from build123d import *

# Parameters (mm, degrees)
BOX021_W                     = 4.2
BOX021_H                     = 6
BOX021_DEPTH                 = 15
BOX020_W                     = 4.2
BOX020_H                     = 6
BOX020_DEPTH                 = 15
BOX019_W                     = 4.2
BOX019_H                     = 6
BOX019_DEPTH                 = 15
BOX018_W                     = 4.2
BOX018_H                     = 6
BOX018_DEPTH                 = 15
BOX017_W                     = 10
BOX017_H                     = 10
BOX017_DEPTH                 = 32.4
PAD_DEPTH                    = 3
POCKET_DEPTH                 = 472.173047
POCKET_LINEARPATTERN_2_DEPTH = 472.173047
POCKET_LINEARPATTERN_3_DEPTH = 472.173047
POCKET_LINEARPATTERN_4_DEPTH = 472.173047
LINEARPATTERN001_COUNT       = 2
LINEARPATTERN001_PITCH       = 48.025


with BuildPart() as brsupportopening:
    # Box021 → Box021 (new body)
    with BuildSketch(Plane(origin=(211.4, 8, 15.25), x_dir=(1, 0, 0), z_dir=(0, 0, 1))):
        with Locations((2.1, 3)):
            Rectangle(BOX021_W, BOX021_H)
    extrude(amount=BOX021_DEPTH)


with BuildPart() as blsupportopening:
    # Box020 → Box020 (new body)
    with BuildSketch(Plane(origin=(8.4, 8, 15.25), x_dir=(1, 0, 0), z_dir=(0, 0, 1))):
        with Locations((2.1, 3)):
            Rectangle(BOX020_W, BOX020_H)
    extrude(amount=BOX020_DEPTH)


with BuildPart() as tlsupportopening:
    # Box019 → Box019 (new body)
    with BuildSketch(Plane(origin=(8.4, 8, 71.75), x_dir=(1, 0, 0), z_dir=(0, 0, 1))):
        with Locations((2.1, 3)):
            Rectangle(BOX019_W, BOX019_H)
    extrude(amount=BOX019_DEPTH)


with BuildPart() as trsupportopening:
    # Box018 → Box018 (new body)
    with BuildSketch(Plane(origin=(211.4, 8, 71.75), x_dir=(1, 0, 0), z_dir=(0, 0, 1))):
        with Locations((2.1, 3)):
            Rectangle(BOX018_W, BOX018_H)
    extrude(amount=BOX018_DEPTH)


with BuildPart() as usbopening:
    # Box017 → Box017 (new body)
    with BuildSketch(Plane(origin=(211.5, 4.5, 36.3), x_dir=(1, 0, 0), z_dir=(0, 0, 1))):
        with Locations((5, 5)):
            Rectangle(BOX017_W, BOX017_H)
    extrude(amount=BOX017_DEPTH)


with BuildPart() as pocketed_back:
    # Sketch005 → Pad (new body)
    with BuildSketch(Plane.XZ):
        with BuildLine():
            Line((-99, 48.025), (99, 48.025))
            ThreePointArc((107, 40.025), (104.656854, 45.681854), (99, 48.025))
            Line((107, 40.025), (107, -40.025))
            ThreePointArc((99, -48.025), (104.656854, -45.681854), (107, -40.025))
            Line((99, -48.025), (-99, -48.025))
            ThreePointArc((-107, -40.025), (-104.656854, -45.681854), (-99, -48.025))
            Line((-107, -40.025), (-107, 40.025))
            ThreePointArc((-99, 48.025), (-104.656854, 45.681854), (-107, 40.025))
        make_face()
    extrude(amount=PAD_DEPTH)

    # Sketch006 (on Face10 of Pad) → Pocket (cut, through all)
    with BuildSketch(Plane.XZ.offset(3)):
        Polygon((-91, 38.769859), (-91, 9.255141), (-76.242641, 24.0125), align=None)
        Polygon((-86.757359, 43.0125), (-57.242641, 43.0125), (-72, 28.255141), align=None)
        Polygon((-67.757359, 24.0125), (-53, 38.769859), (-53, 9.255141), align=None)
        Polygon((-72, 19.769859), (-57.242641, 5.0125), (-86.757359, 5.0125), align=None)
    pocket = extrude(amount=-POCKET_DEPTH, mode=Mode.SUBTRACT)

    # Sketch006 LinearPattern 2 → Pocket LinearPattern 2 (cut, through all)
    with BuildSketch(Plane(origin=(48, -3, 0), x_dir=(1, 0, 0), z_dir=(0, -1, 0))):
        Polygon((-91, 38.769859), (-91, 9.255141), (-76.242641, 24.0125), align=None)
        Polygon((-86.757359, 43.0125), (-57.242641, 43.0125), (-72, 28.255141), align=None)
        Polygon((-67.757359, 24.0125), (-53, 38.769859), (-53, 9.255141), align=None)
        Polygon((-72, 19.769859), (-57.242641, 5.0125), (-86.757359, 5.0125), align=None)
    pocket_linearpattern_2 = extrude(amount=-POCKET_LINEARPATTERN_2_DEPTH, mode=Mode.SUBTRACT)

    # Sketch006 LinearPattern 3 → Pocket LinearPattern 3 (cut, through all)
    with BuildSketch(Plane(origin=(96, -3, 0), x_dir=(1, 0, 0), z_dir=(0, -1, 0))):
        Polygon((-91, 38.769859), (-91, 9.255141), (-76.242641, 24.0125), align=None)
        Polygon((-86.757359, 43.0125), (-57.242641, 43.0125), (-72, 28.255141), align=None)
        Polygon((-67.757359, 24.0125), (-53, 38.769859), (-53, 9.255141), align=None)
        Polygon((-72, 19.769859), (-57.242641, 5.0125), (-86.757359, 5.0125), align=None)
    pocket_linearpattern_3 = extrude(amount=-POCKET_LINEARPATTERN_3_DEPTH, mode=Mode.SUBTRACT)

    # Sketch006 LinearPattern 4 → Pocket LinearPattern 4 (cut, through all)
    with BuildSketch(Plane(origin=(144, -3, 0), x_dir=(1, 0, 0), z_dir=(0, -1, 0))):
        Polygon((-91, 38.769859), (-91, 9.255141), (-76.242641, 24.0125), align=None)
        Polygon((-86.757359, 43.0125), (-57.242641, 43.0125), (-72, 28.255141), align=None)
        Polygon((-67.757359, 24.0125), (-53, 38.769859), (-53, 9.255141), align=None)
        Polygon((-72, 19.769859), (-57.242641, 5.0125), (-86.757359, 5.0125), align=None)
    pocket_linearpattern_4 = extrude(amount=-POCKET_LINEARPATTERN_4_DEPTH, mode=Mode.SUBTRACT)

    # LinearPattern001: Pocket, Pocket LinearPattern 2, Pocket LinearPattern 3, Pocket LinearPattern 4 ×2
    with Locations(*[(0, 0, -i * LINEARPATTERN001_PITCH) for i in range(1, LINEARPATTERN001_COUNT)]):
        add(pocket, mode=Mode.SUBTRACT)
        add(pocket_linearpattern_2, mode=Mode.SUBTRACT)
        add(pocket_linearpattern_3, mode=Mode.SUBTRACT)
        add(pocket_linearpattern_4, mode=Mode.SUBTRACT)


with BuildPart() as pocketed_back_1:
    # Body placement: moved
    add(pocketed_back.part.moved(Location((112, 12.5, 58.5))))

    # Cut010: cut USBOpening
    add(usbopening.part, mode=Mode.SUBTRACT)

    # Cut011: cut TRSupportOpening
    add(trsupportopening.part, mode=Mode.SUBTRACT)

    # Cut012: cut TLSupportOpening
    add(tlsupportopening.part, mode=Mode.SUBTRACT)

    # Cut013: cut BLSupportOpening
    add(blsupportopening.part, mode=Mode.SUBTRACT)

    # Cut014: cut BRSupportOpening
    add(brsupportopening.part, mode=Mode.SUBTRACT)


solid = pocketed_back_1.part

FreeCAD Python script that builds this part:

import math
import FreeCAD as App
import Part
import Sketcher

V = App.Vector
Q = App.Units.Quantity

doc = App.newDocument("Part")
body = doc.addObject("PartDesign::Body", "Body")

sketch1 = doc.addObject("Sketcher::SketchObject", "Sketch")
body.addObject(sketch1)
sketch1.AttachmentSupport = (doc.XY_Plane, [""])
sketch1.MapMode = "FlatFace"
sketch1.AttachmentOffset = App.Placement(V(0, 0, 15.25), App.Rotation())
sketch1.addGeometry([
    Part.LineSegment(V(211.4, 14, 0), V(211.4, 8, 0)),
    Part.LineSegment(V(211.4, 8, 0), V(215.6, 8, 0)),
    Part.LineSegment(V(215.6, 8, 0), V(215.6, 14, 0)),
    Part.LineSegment(V(215.6, 14, 0), V(211.4, 14, 0)),
], False)
sketch1.addConstraint([
    Sketcher.Constraint("Coincident", 0, 2, 1, 1),
    Sketcher.Constraint("Coincident", 1, 2, 2, 1),
    Sketcher.Constraint("Coincident", 2, 2, 3, 1),
    Sketcher.Constraint("Coincident", 3, 2, 0, 1),
    Sketcher.Constraint("Vertical", 0),
    Sketcher.Constraint("Horizontal", 1),
    Sketcher.Constraint("Vertical", 2),
    Sketcher.Constraint("Horizontal", 3),
    Sketcher.Constraint("DistanceY", 0, 2, 0, 1, Q("6 mm")),
    Sketcher.Constraint("DistanceX", 1, 1, 1, 2, Q("4.2 mm")),
    Sketcher.Constraint("DistanceY", -1, 1, 0, 2, Q("8 mm")),
    Sketcher.Constraint("DistanceX", -1, 1, 0, 2, Q("211.4 mm")),
])
pad1 = doc.addObject("PartDesign::Pad", "Pad")
body.addObject(pad1)
pad1.Profile = sketch1
pad1.Length = 15
body2 = doc.addObject("PartDesign::Body", "Body001")

sketch2 = doc.addObject("Sketcher::SketchObject", "Sketch001")
body2.addObject(sketch2)
sketch2.AttachmentSupport = (doc.getObject("XY_Plane001"), [""])
sketch2.MapMode = "FlatFace"
sketch2.AttachmentOffset = App.Placement(V(0, 0, 15.25), App.Rotation())
sketch2.addGeometry([
    Part.LineSegment(V(8.4, 14, 0), V(8.4, 8, 0)),
    Part.LineSegment(V(8.4, 8, 0), V(12.6, 8, 0)),
    Part.LineSegment(V(12.6, 8, 0), V(12.6, 14, 0)),
    Part.LineSegment(V(12.6, 14, 0), V(8.4, 14, 0)),
], False)
sketch2.addConstraint([
    Sketcher.Constraint("Coincident", 0, 2, 1, 1),
    Sketcher.Constraint("Coincident", 1, 2, 2, 1),
    Sketcher.Constraint("Coincident", 2, 2, 3, 1),
    Sketcher.Constraint("Coincident", 3, 2, 0, 1),
    Sketcher.Constraint("Vertical", 0),
    Sketcher.Constraint("Horizontal", 1),
    Sketcher.Constraint("Vertical", 2),
    Sketcher.Constraint("Horizontal", 3),
    Sketcher.Constraint("DistanceY", 0, 2, 0, 1, Q("6 mm")),
    Sketcher.Constraint("DistanceX", 1, 1, 1, 2, Q("4.2 mm")),
    Sketcher.Constraint("DistanceY", -1, 1, 0, 2, Q("8 mm")),
    Sketcher.Constraint("DistanceX", -1, 1, 0, 2, Q("8.4 mm")),
])
pad2 = doc.addObject("PartDesign::Pad", "Pad001")
body2.addObject(pad2)
pad2.Profile = sketch2
pad2.Length = 15
body3 = doc.addObject("PartDesign::Body", "Body002")

sketch3 = doc.addObject("Sketcher::SketchObject", "Sketch002")
body3.addObject(sketch3)
sketch3.AttachmentSupport = (doc.getObject("XY_Plane002"), [""])
sketch3.MapMode = "FlatFace"
sketch3.AttachmentOffset = App.Placement(V(0, 0, 71.75), App.Rotation())
sketch3.addGeometry([
    Part.LineSegment(V(8.4, 14, 0), V(8.4, 8, 0)),
    Part.LineSegment(V(8.4, 8, 0), V(12.6, 8, 0)),
    Part.LineSegment(V(12.6, 8, 0), V(12.6, 14, 0)),
    Part.LineSegment(V(12.6, 14, 0), V(8.4, 14, 0)),
], False)
sketch3.addConstraint([
    Sketcher.Constraint("Coincident", 0, 2, 1, 1),
    Sketcher.Constraint("Coincident", 1, 2, 2, 1),
    Sketcher.Constraint("Coincident", 2, 2, 3, 1),
    Sketcher.Constraint("Coincident", 3, 2, 0, 1),
    Sketcher.Constraint("Vertical", 0),
    Sketcher.Constraint("Horizontal", 1),
    Sketcher.Constraint("Vertical", 2),
    Sketcher.Constraint("Horizontal", 3),
    Sketcher.Constraint("DistanceY", 0, 2, 0, 1, Q("6 mm")),
    Sketcher.Constraint("DistanceX", 1, 1, 1, 2, Q("4.2 mm")),
    Sketcher.Constraint("DistanceY", -1, 1, 0, 2, Q("8 mm")),
    Sketcher.Constraint("DistanceX", -1, 1, 0, 2, Q("8.4 mm")),
])
pad3 = doc.addObject("PartDesign::Pad", "Pad002")
body3.addObject(pad3)
pad3.Profile = sketch3
pad3.Length = 15
body4 = doc.addObject("PartDesign::Body", "Body003")

sketch4 = doc.addObject("Sketcher::SketchObject", "Sketch003")
body4.addObject(sketch4)
sketch4.AttachmentSupport = (doc.getObject("XY_Plane003"), [""])
sketch4.MapMode = "FlatFace"
sketch4.AttachmentOffset = App.Placement(V(0, 0, 71.75), App.Rotation())
sketch4.addGeometry([
    Part.LineSegment(V(211.4, 14, 0), V(211.4, 8, 0)),
    Part.LineSegment(V(211.4, 8, 0), V(215.6, 8, 0)),
    Part.LineSegment(V(215.6, 8, 0), V(215.6, 14, 0)),
    Part.LineSegment(V(215.6, 14, 0), V(211.4, 14, 0)),
], False)
sketch4.addConstraint([
    Sketcher.Constraint("Coincident", 0, 2, 1, 1),
    Sketcher.Constraint("Coincident", 1, 2, 2, 1),
    Sketcher.Constraint("Coincident", 2, 2, 3, 1),
    Sketcher.Constraint("Coincident", 3, 2, 0, 1),
    Sketcher.Constraint("Vertical", 0),
    Sketcher.Constraint("Horizontal", 1),
    Sketcher.Constraint("Vertical", 2),
    Sketcher.Constraint("Horizontal", 3),
    Sketcher.Constraint("DistanceY", 0, 2, 0, 1, Q("6 mm")),
    Sketcher.Constraint("DistanceX", 1, 1, 1, 2, Q("4.2 mm")),
    Sketcher.Constraint("DistanceY", -1, 1, 0, 2, Q("8 mm")),
    Sketcher.Constraint("DistanceX", -1, 1, 0, 2, Q("211.4 mm")),
])
pad4 = doc.addObject("PartDesign::Pad", "Pad003")
body4.addObject(pad4)
pad4.Profile = sketch4
pad4.Length = 15
body5 = doc.addObject("PartDesign::Body", "Body004")

sketch5 = doc.addObject("Sketcher::SketchObject", "Sketch004")
body5.addObject(sketch5)
sketch5.AttachmentSupport = (doc.getObject("XY_Plane004"), [""])
sketch5.MapMode = "FlatFace"
sketch5.AttachmentOffset = App.Placement(V(0, 0, 36.3), App.Rotation())
sketch5.addGeometry([
    Part.LineSegment(V(211.5, 14.5, 0), V(211.5, 4.5, 0)),
    Part.LineSegment(V(211.5, 4.5, 0), V(221.5, 4.5, 0)),
    Part.LineSegment(V(221.5, 4.5, 0), V(221.5, 14.5, 0)),
    Part.LineSegment(V(221.5, 14.5, 0), V(211.5, 14.5, 0)),
], False)
sketch5.addConstraint([
    Sketcher.Constraint("Coincident", 0, 2, 1, 1),
    Sketcher.Constraint("Coincident", 1, 2, 2, 1),
    Sketcher.Constraint("Coincident", 2, 2, 3, 1),
    Sketcher.Constraint("Coincident", 3, 2, 0, 1),
    Sketcher.Constraint("Vertical", 0),
    Sketcher.Constraint("Horizontal", 1),
    Sketcher.Constraint("Vertical", 2),
    Sketcher.Constraint("Horizontal", 3),
    Sketcher.Constraint("Equal", 3, 0),
    Sketcher.Constraint("DistanceX", 1, 1, 1, 2, Q("10 mm")),
    Sketcher.Constraint("DistanceX", -1, 1, 0, 2, Q("211.5 mm")),
    Sketcher.Constraint("DistanceY", -1, 1, 0, 2, Q("4.5 mm")),
])
pad5 = doc.addObject("PartDesign::Pad", "Pad004")
body5.addObject(pad5)
pad5.Profile = sketch5
pad5.Length = 32.4
body6 = doc.addObject("PartDesign::Body", "Body005")

sketch6 = doc.addObject("Sketcher::SketchObject", "Sketch005")
body6.addObject(sketch6)
sketch6.AttachmentSupport = (doc.getObject("XZ_Plane005"), [""])
sketch6.MapMode = "FlatFace"
sketch6.addGeometry([
    Part.LineSegment(V(99, 48.025, 0), V(-99, 48.025, 0)),
    Part.ArcOfCircle(Part.Circle(V(-98.999999, 40.024999, 0), V(0, 0, 1), 8.000001), math.radians(90.000006), math.radians(179.999994)),
    Part.LineSegment(V(-107, 40.025, 0), V(-107, -40.025, 0)),
    Part.ArcOfCircle(Part.Circle(V(-98.999999, -40.024999, 0), V(0, 0, 1), 8.000001), math.radians(-179.999994), math.radians(-90.000006)),
    Part.LineSegment(V(-99, -48.025, 0), V(99, -48.025, 0)),
    Part.ArcOfCircle(Part.Circle(V(98.999999, -40.024999, 0), V(0, 0, 1), 8.000001), math.radians(-89.999994), math.radians(-0.000006)),
    Part.LineSegment(V(107, -40.025, 0), V(107, 40.025, 0)),
    Part.ArcOfCircle(Part.Circle(V(98.999999, 40.024999, 0), V(0, 0, 1), 8.000001), math.radians(0.000006), math.radians(89.999994)),
], False)
sketch6.addConstraint([
    Sketcher.Constraint("Tangent", 0, 2, 1, 1),
    Sketcher.Constraint("Tangent", 1, 2, 2, 1),
    Sketcher.Constraint("Tangent", 2, 2, 3, 1),
    Sketcher.Constraint("Tangent", 3, 2, 4, 1),
    Sketcher.Constraint("Tangent", 4, 2, 5, 1),
    Sketcher.Constraint("Tangent", 5, 2, 6, 1),
    Sketcher.Constraint("Tangent", 6, 2, 7, 1),
    Sketcher.Constraint("Tangent", 7, 2, 0, 1),
    Sketcher.Constraint("Horizontal", 0),
    Sketcher.Constraint("Vertical", 2),
    Sketcher.Constraint("Horizontal", 4),
    Sketcher.Constraint("Vertical", 6),
    Sketcher.Constraint("Equal", 1, 3),
    Sketcher.Constraint("Equal", 3, 5),
    Sketcher.Constraint("Equal", 5, 7),
    Sketcher.Constraint("Symmetric", 1, 3, 5, 3, -1, 1),
    Sketcher.Constraint("Radius", 1, Q("8.000001 mm")),
    Sketcher.Constraint("DistanceX", 0, 2, 0, 1, Q("198 mm")),
    Sketcher.Constraint("DistanceY", 2, 2, 2, 1, Q("80.05 mm")),
])
pad6 = doc.addObject("PartDesign::Pad", "Pad005")
body6.addObject(pad6)
pad6.Profile = sketch6
pad6.Length = 3

sketch7 = doc.addObject("Sketcher::SketchObject", "Sketch006")
body6.addObject(sketch7)
sketch7.AttachmentSupport = (doc.getObject("XZ_Plane005"), [""])
sketch7.MapMode = "FlatFace"
sketch7.AttachmentOffset = App.Placement(V(0, 0, 3), App.Rotation())
sketch7.addGeometry([
    Part.LineSegment(V(-91, 38.769859, 0), V(-91, 9.255141, 0)),
    Part.LineSegment(V(-91, 9.255141, 0), V(-76.242641, 24.0125, 0)),
    Part.LineSegment(V(-76.242641, 24.0125, 0), V(-91, 38.769859, 0)),
    Part.LineSegment(V(-57.242641, 43.0125, 0), V(-86.757359, 43.0125, 0)),
    Part.LineSegment(V(-86.757359, 43.0125, 0), V(-72, 28.255141, 0)),
    Part.LineSegment(V(-72, 28.255141, 0), V(-57.242641, 43.0125, 0)),
    Part.LineSegment(V(-53, 38.769859, 0), V(-67.757359, 24.0125, 0)),
    Part.LineSegment(V(-67.757359, 24.0125, 0), V(-53, 9.255141, 0)),
    Part.LineSegment(V(-53, 9.255141, 0), V(-53, 38.769859, 0)),
    Part.LineSegment(V(-57.242641, 5.0125, 0), V(-72, 19.769859, 0)),
    Part.LineSegment(V(-72, 19.769859, 0), V(-86.757359, 5.0125, 0)),
    Part.LineSegment(V(-86.757359, 5.0125, 0), V(-57.242641, 5.0125, 0)),
], False)
sketch7.addConstraint([
    Sketcher.Constraint("Coincident", 0, 2, 1, 1),
    Sketcher.Constraint("Coincident", 1, 2, 2, 1),
    Sketcher.Constraint("Coincident", 2, 2, 0, 1),
    Sketcher.Constraint("Coincident", 3, 2, 4, 1),
    Sketcher.Constraint("Coincident", 4, 2, 5, 1),
    Sketcher.Constraint("Coincident", 5, 2, 3, 1),
    Sketcher.Constraint("Coincident", 6, 2, 7, 1),
    Sketcher.Constraint("Coincident", 7, 2, 8, 1),
    Sketcher.Constraint("Coincident", 8, 2, 6, 1),
    Sketcher.Constraint("Coincident", 9, 2, 10, 1),
    Sketcher.Constraint("Coincident", 10, 2, 11, 1),
    Sketcher.Constraint("Coincident", 11, 2, 9, 1),
    Sketcher.Constraint("Vertical", 0),
    Sketcher.Constraint("Horizontal", 3),
    Sketcher.Constraint("Vertical", 8),
    Sketcher.Constraint("Horizontal", 11),
    Sketcher.Constraint("Perpendicular", 1, 2),
    Sketcher.Constraint("Parallel", 2, 4),
    Sketcher.Constraint("Perpendicular", 4, 5),
    Sketcher.Constraint("Parallel", 5, 6),
    Sketcher.Constraint("Perpendicular", 6, 7),
    Sketcher.Constraint("Parallel", 7, 9),
    Sketcher.Constraint("Perpendicular", 9, 10),
    Sketcher.Constraint("Horizontal", 1, 2, 6, 2),
    Sketcher.Constraint("Horizontal", 0, 2, 7, 2),
    Sketcher.Constraint("Horizontal", 2, 2, 8, 2),
    Sketcher.Constraint("Vertical", 4, 2, 9, 2),
    Sketcher.Constraint("Vertical", 3, 2, 10, 2),
    Sketcher.Constraint("Equal", 11, 0),
    Sketcher.Constraint("DistanceX", 0, 2, -1, 1, Q("91 mm")),
    Sketcher.Constraint("DistanceX", 4, 2, -1, 1, Q("72 mm")),
    Sketcher.Constraint("DistanceX", 7, 2, -1, 1, Q("53 mm")),
    Sketcher.Constraint("DistanceY", 1, 2, 3, 2, Q("19 mm")),
    Sketcher.Constraint("DistanceY", 10, 2, 1, 2, Q("19 mm")),
    Sketcher.Constraint("DistanceY", -1, 1, 1, 2, Q("24.0125 mm")),
    Sketcher.Constraint("DistanceX", 3, 2, 3, 1, Q("29.514718 mm")),
])
pocket1 = doc.addObject("PartDesign::Pocket", "Pocket")
body6.addObject(pocket1)
pocket1.Profile = sketch7
pocket1.Type = "ThroughAll"

sketch8 = doc.addObject("Sketcher::SketchObject", "Sketch007")
body6.addObject(sketch8)
sketch8.AttachmentSupport = (doc.getObject("XZ_Plane005"), [""])
sketch8.MapMode = "FlatFace"
sketch8.AttachmentOffset = App.Placement(V(0, 0, 3), App.Rotation())
sketch8.addGeometry([
    Part.LineSegment(V(-43, 38.769859, 0), V(-43, 9.255141, 0)),
    Part.LineSegment(V(-43, 9.255141, 0), V(-28.242641, 24.0125, 0)),
    Part.LineSegment(V(-28.242641, 24.0125, 0), V(-43, 38.769859, 0)),
    Part.LineSegment(V(-9.242641, 43.0125, 0), V(-38.757359, 43.0125, 0)),
    Part.LineSegment(V(-38.757359, 43.0125, 0), V(-24, 28.255141, 0)),
    Part.LineSegment(V(-24, 28.255141, 0), V(-9.242641, 43.0125, 0)),
    Part.LineSegment(V(-5, 38.769859, 0), V(-19.757359, 24.0125, 0)),
    Part.LineSegment(V(-19.757359, 24.0125, 0), V(-5, 9.255141, 0)),
    Part.LineSegment(V(-5, 9.255141, 0), V(-5, 38.769859, 0)),
    Part.LineSegment(V(-9.242641, 5.0125, 0), V(-24, 19.769859, 0)),
    Part.LineSegment(V(-24, 19.769859, 0), V(-38.757359, 5.0125, 0)),
    Part.LineSegment(V(-38.757359, 5.0125, 0), V(-9.242641, 5.0125, 0)),
], False)
sketch8.addConstraint([
    Sketcher.Constraint("Coincident", 0, 2, 1, 1),
    Sketcher.Constraint("Coincident", 1, 2, 2, 1),
    Sketcher.Constraint("Coincident", 2, 2, 0, 1),
    Sketcher.Constraint("Coincident", 3, 2, 4, 1),
    Sketcher.Constraint("Coincident", 4, 2, 5, 1),
    Sketcher.Constraint("Coincident", 5, 2, 3, 1),
    Sketcher.Constraint("Coincident", 6, 2, 7, 1),
    Sketcher.Constraint("Coincident", 7, 2, 8, 1),
    Sketcher.Constraint("Coincident", 8, 2, 6, 1),
    Sketcher.Constraint("Coincident", 9, 2, 10, 1),
    Sketcher.Constraint("Coincident", 10, 2, 11, 1),
    Sketcher.Constraint("Coincident", 11, 2, 9, 1),
    Sketcher.Constraint("Vertical", 0),
    Sketcher.Constraint("Horizontal", 3),
    Sketcher.Constraint("Vertical", 8),
    Sketcher.Constraint("Horizontal", 11),
    Sketcher.Constraint("Perpendicular", 1, 2),
    Sketcher.Constraint("Parallel", 2, 4),
    Sketcher.Constraint("Perpendicular", 4, 5),
    Sketcher.Constraint("Parallel", 5, 6),
    Sketcher.Constraint("Perpendicular", 6, 7),
    Sketcher.Constraint("Parallel", 7, 9),
    Sketcher.Constraint("Perpendicular", 9, 10),
    Sketcher.Constraint("Horizontal", 1, 2, 6, 2),
    Sketcher.Constraint("Horizontal", 0, 2, 7, 2),
    Sketcher.Constraint("Horizontal", 2, 2, 8, 2),
    Sketcher.Constraint("Vertical", 4, 2, 9, 2),
    Sketcher.Constraint("Vertical", 3, 2, 10, 2),
    Sketcher.Constraint("Equal", 11, 0),
    Sketcher.Constraint("DistanceX", 0, 2, -1, 1, Q("43 mm")),
    Sketcher.Constraint("DistanceX", 4, 2, -1, 1, Q("24 mm")),
    Sketcher.Constraint("DistanceX", 7, 2, -1, 1, Q("5 mm")),
    Sketcher.Constraint("DistanceY", 1, 2, 3, 2, Q("19 mm")),
    Sketcher.Constraint("DistanceY", 10, 2, 1, 2, Q("19 mm")),
    Sketcher.Constraint("DistanceX", 3, 2, 3, 1, Q("29.514718 mm")),
    Sketcher.Constraint("DistanceY", -1, 1, 1, 2, Q("24.0125 mm")),
])
pocket2 = doc.addObject("PartDesign::Pocket", "Pocket001")
body6.addObject(pocket2)
pocket2.Profile = sketch8
pocket2.Type = "ThroughAll"

sketch9 = doc.addObject("Sketcher::SketchObject", "Sketch008")
body6.addObject(sketch9)
sketch9.AttachmentSupport = (doc.getObject("XZ_Plane005"), [""])
sketch9.MapMode = "FlatFace"
sketch9.AttachmentOffset = App.Placement(V(0, 0, 3), App.Rotation())
sketch9.addGeometry([
    Part.LineSegment(V(5, 38.769859, 0), V(5, 9.255141, 0)),
    Part.LineSegment(V(5, 9.255141, 0), V(19.757359, 24.0125, 0)),
    Part.LineSegment(V(19.757359, 24.0125, 0), V(5, 38.769859, 0)),
    Part.LineSegment(V(38.757359, 43.0125, 0), V(9.242641, 43.0125, 0)),
    Part.LineSegment(V(9.242641, 43.0125, 0), V(24, 28.255141, 0)),
    Part.LineSegment(V(24, 28.255141, 0), V(38.757359, 43.0125, 0)),
    Part.LineSegment(V(43, 38.769859, 0), V(28.242641, 24.0125, 0)),
    Part.LineSegment(V(28.242641, 24.0125, 0), V(43, 9.255141, 0)),
    Part.LineSegment(V(43, 9.255141, 0), V(43, 38.769859, 0)),
    Part.LineSegment(V(38.757359, 5.0125, 0), V(24, 19.769859, 0)),
    Part.LineSegment(V(24, 19.769859, 0), V(9.242641, 5.0125, 0)),
    Part.LineSegment(V(9.242641, 5.0125, 0), V(38.757359, 5.0125, 0)),
], False)
sketch9.addConstraint([
    Sketcher.Constraint("Coincident", 0, 2, 1, 1),
    Sketcher.Constraint("Coincident", 1, 2, 2, 1),
    Sketcher.Constraint("Coincident", 2, 2, 0, 1),
    Sketcher.Constraint("Coincident", 3, 2, 4, 1),
    Sketcher.Constraint("Coincident", 4, 2, 5, 1),
    Sketcher.Constraint("Coincident", 5, 2, 3, 1),
    Sketcher.Constraint("Coincident", 6, 2, 7, 1),
    Sketcher.Constraint("Coincident", 7, 2, 8, 1),
    Sketcher.Constraint("Coincident", 8, 2, 6, 1),
    Sketcher.Constraint("Coincident", 9, 2, 10, 1),
    Sketcher.Constraint("Coincident", 10, 2, 11, 1),
    Sketcher.Constraint("Coincident", 11, 2, 9, 1),
    Sketcher.Constraint("Vertical", 0),
    Sketcher.Constraint("Horizontal", 3),
    Sketcher.Constraint("Vertical", 8),
    Sketcher.Constraint("Horizontal", 11),
    Sketcher.Constraint("Perpendicular", 1, 2),
    Sketcher.Constraint("Parallel", 2, 4),
    Sketcher.Constraint("Perpendicular", 4, 5),
    Sketcher.Constraint("Parallel", 5, 6),
    Sketcher.Constraint("Perpendicular", 6, 7),
    Sketcher.Constraint("Parallel", 7, 9),
    Sketcher.Constraint("Perpendicular", 9, 10),
    Sketcher.Constraint("Horizontal", 1, 2, 6, 2),
    Sketcher.Constraint("Horizontal", 0, 2, 7, 2),
    Sketcher.Constraint("Horizontal", 2, 2, 8, 2),
    Sketcher.Constraint("Vertical", 4, 2, 9, 2),
    Sketcher.Constraint("Vertical", 3, 2, 10, 2),
    Sketcher.Constraint("Equal", 11, 0),
    Sketcher.Constraint("DistanceX", -1, 1, 0, 2, Q("5 mm")),
    Sketcher.Constraint("DistanceX", -1, 1, 4, 2, Q("24 mm")),
    Sketcher.Constraint("DistanceX", -1, 1, 7, 2, Q("43 mm")),
    Sketcher.Constraint("DistanceY", 1, 2, 3, 2, Q("19 mm")),
    Sketcher.Constraint("DistanceY", 10, 2, 1, 2, Q("19 mm")),
    Sketcher.Constraint("DistanceX", 3, 2, 3, 1, Q("29.514718 mm")),
    Sketcher.Constraint("DistanceY", -1, 1, 1, 2, Q("24.0125 mm")),
])
pocket3 = doc.addObject("PartDesign::Pocket", "Pocket002")
body6.addObject(pocket3)
pocket3.Profile = sketch9
pocket3.Type = "ThroughAll"

sketch10 = doc.addObject("Sketcher::SketchObject", "Sketch009")
body6.addObject(sketch10)
sketch10.AttachmentSupport = (doc.getObject("XZ_Plane005"), [""])
sketch10.MapMode = "FlatFace"
sketch10.AttachmentOffset = App.Placement(V(0, 0, 3), App.Rotation())
sketch10.addGeometry([
    Part.LineSegment(V(53, 38.769859, 0), V(53, 9.255141, 0)),
    Part.LineSegment(V(53, 9.255141, 0), V(67.757359, 24.0125, 0)),
    Part.LineSegment(V(67.757359, 24.0125, 0), V(53, 38.769859, 0)),
    Part.LineSegment(V(86.757359, 43.0125, 0), V(57.242641, 43.0125, 0)),
    Part.LineSegment(V(57.242641, 43.0125, 0), V(72, 28.255141, 0)),
    Part.LineSegment(V(72, 28.255141, 0), V(86.757359, 43.0125, 0)),
    Part.LineSegment(V(91, 38.769859, 0), V(76.242641, 24.0125, 0)),
    Part.LineSegment(V(76.242641, 24.0125, 0), V(91, 9.255141, 0)),
    Part.LineSegment(V(91, 9.255141, 0), V(91, 38.769859, 0)),
    Part.LineSegment(V(86.757359, 5.0125, 0), V(72, 19.769859, 0)),
    Part.LineSegment(V(72, 19.769859, 0), V(57.242641, 5.0125, 0)),
    Part.LineSegment(V(57.242641, 5.0125, 0), V(86.757359, 5.0125, 0)),
], False)
sketch10.addConstraint([
    Sketcher.Constraint("Coincident", 0, 2, 1, 1),
    Sketcher.Constraint("Coincident", 1, 2, 2, 1),
    Sketcher.Constraint("Coincident", 2, 2, 0, 1),
    Sketcher.Constraint("Coincident", 3, 2, 4, 1),
    Sketcher.Constraint("Coincident", 4, 2, 5, 1),
    Sketcher.Constraint("Coincident", 5, 2, 3, 1),
    Sketcher.Constraint("Coincident", 6, 2, 7, 1),
    Sketcher.Constraint("Coincident", 7, 2, 8, 1),
    Sketcher.Constraint("Coincident", 8, 2, 6, 1),
    Sketcher.Constraint("Coincident", 9, 2, 10, 1),
    Sketcher.Constraint("Coincident", 10, 2, 11, 1),
    Sketcher.Constraint("Coincident", 11, 2, 9, 1),
    Sketcher.Constraint("Vertical", 0),
    Sketcher.Constraint("Horizontal", 3),
    Sketcher.Constraint("Vertical", 8),
    Sketcher.Constraint("Horizontal", 11),
    Sketcher.Constraint("Perpendicular", 1, 2),
    Sketcher.Constraint("Parallel", 2, 4),
    Sketcher.Constraint("Perpendicular", 4, 5),
    Sketcher.Constraint("Parallel", 5, 6),
    Sketcher.Constraint("Perpendicular", 6, 7),
    Sketcher.Constraint("Parallel", 7, 9),
    Sketcher.Constraint("Perpendicular", 9, 10),
    Sketcher.Constraint("Horizontal", 1, 2, 6, 2),
    Sketcher.Constraint("Horizontal", 0, 2, 7, 2),
    Sketcher.Constraint("Horizontal", 2, 2, 8, 2),
    Sketcher.Constraint("Vertical", 4, 2, 9, 2),
    Sketcher.Constraint("Vertical", 3, 2, 10, 2),
    Sketcher.Constraint("Equal", 11, 0),
    Sketcher.Constraint("DistanceX", -1, 1, 0, 2, Q("53 mm")),
    Sketcher.Constraint("DistanceX", -1, 1, 4, 2, Q("72 mm")),
    Sketcher.Constraint("DistanceX", -1, 1, 7, 2, Q("91 mm")),
    Sketcher.Constraint("DistanceY", 1, 2, 3, 2, Q("19 mm")),
    Sketcher.Constraint("DistanceY", 10, 2, 1, 2, Q("19 mm")),
    Sketcher.Constraint("DistanceY", -1, 1, 1, 2, Q("24.0125 mm")),
    Sketcher.Constraint("DistanceX", 3, 2, 3, 1, Q("29.514718 mm")),
])
pocket4 = doc.addObject("PartDesign::Pocket", "Pocket003")
body6.addObject(pocket4)
pocket4.Profile = sketch10
pocket4.Type = "ThroughAll"
doc.recompute()

linearpattern = doc.addObject("PartDesign::LinearPattern", "LinearPattern")
body6.addObject(linearpattern)
linearpattern.Originals = [pocket1, pocket2, pocket3, pocket4]
linearpattern.Direction = (doc.getObject("Z_Axis005"), [""])
linearpattern.Mode = "offset"
linearpattern.Offset = 48.025
linearpattern.Occurrences = 2
linearpattern.Reversed = True
body6.Tip = linearpattern
body7 = doc.addObject("PartDesign::Body", "Body006")
doc.recompute()

body6.Placement = App.Placement(V(112, 12.5, 58.5), App.Rotation(V(0, 0, 1), 0))
boolean = doc.addObject("PartDesign::Boolean", "Boolean")
body7.addObject(boolean)
boolean.Type = "Fuse"
boolean.addObjects([body6])
doc.recompute()

boolean2 = doc.addObject("PartDesign::Boolean", "Boolean001")
body7.addObject(boolean2)
boolean2.Type = "Cut"
boolean2.addObjects([body5])
doc.recompute()

boolean3 = doc.addObject("PartDesign::Boolean", "Boolean002")
body7.addObject(boolean3)
boolean3.Type = "Cut"
boolean3.addObjects([body4])
doc.recompute()

boolean4 = doc.addObject("PartDesign::Boolean", "Boolean003")
body7.addObject(boolean4)
boolean4.Type = "Cut"
boolean4.addObjects([body3])
doc.recompute()

boolean5 = doc.addObject("PartDesign::Boolean", "Boolean004")
body7.addObject(boolean5)
boolean5.Type = "Cut"
boolean5.addObjects([body2])
doc.recompute()

boolean6 = doc.addObject("PartDesign::Boolean", "Boolean005")
body7.addObject(boolean6)
boolean6.Type = "Cut"
boolean6.addObjects([body])

doc.recompute()
